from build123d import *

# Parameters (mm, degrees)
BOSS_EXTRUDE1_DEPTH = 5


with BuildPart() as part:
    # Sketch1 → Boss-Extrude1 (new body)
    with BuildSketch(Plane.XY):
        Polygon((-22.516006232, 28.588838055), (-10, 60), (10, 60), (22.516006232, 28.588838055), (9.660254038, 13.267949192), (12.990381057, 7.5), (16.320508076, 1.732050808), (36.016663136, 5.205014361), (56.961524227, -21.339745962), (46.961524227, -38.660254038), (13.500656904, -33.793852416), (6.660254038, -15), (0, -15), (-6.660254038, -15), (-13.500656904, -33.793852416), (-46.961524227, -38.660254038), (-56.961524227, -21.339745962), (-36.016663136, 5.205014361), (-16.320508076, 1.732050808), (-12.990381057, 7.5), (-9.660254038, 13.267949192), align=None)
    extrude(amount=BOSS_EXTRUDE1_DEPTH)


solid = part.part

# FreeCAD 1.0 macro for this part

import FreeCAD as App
import Part
import Sketcher
Q = App.Units.Quantity


def add_polygon(sketch, points):
    """Adds a closed chain of lines whose ends are joined by coincident constraints."""
    first, n = sketch.GeometryCount, len(points)
    for a, b in zip(points, points[1:] + points[:1]):
        sketch.addGeometry(Part.LineSegment(App.Vector(*a, 0), App.Vector(*b, 0)), False)
    for i in range(n):
        sketch.addConstraint(Sketcher.Constraint("Coincident", first + i, 2, first + (i + 1) % n, 1))

doc = App.newDocument("Part")
body = doc.addObject("PartDesign::Body", "Body")

# Sketch on XY plane
sketch1 = doc.addObject("Sketcher::SketchObject", "Sketch")
body.addObject(sketch1)
sketch1.AttachmentSupport = (doc.XY_Plane, [""])
sketch1.MapMode = "FlatFace"
add_polygon(sketch1, [(-10, 60), (-22.516006, 28.588838), (-9.660254, 13.267949), (-16.320508, 1.732051), (-36.016663, 5.205014), (-56.961524, -21.339746), (-46.961524, -38.660254), (-13.500657, -33.793852), (-6.660254, -15), (6.660254, -15), (13.500657, -33.793852), (46.961524, -38.660254), (56.961524, -21.339746), (36.016663, 5.205014), (16.320508, 1.732051), (9.660254, 13.267949), (22.516006, 28.588838), (10, 60)])  # lines 0-17
sketch1.addConstraint([
    Sketcher.Constraint("Horizontal", 8),
    Sketcher.Constraint("Horizontal", 17),
    Sketcher.Constraint("Symmetric", 6, 2, 9, 2, -2),
    Sketcher.Constraint("Symmetric", 5, 2, 10, 2, -2),
    Sketcher.Constraint("Symmetric", 4, 2, 11, 2, -2),
    Sketcher.Constraint("Symmetric", 3, 2, 12, 2, -2),
    Sketcher.Constraint("Symmetric", 2, 2, 13, 2, -2),
    Sketcher.Constraint("Symmetric", 1, 2, 14, 2, -2),
    Sketcher.Constraint("Symmetric", 0, 2, 15, 2, -2),
    Sketcher.Constraint("Parallel", 2, 11),
    Sketcher.Constraint("Equal", 1, 3),
    Sketcher.Constraint("Equal", 0, 4),
    Sketcher.Constraint("Equal", 3, 5),
    Sketcher.Constraint("Equal", 4, 6),
    Sketcher.Constraint("Equal", 5, 7),
    Sketcher.Constraint("Equal", 7, 9),
    Sketcher.Constraint("Equal", 12, 16),
    Sketcher.Constraint("DistanceX", 17, 2, 17, 1, 20.0),
    Sketcher.Constraint("Angle", 1, Q("-50 deg")),
    Sketcher.Constraint("Angle", 2, Q("-120 deg")),
    Sketcher.Constraint("Angle", 3, Q("170 deg")),
    Sketcher.Constraint("Angle", 7, Q("70 deg")),
    Sketcher.Constraint("Distance", 1, 20.0),
    Sketcher.Constraint("DistanceY", 7, 2, -1, 1, 15.0),
    Sketcher.Constraint("DistanceY", -1, 1, 16, 2, 60.0),
    Sketcher.Constraint("DistanceX", 1, 2, 7, 2, 3.0),
    Sketcher.Constraint("DistanceX", 8, 1, 8, 2, 13.320508),
    Sketcher.Constraint("DistanceY", 2, 2, 1, 2, 11.535898),
    Sketcher.Constraint("DistanceY", 5, 2, 6, 2, 4.866402),
])
pad1 = doc.addObject("PartDesign::Pad", "Pad")
body.addObject(pad1)
pad1.Profile = sketch1
pad1.Length = 5

doc.recompute()
